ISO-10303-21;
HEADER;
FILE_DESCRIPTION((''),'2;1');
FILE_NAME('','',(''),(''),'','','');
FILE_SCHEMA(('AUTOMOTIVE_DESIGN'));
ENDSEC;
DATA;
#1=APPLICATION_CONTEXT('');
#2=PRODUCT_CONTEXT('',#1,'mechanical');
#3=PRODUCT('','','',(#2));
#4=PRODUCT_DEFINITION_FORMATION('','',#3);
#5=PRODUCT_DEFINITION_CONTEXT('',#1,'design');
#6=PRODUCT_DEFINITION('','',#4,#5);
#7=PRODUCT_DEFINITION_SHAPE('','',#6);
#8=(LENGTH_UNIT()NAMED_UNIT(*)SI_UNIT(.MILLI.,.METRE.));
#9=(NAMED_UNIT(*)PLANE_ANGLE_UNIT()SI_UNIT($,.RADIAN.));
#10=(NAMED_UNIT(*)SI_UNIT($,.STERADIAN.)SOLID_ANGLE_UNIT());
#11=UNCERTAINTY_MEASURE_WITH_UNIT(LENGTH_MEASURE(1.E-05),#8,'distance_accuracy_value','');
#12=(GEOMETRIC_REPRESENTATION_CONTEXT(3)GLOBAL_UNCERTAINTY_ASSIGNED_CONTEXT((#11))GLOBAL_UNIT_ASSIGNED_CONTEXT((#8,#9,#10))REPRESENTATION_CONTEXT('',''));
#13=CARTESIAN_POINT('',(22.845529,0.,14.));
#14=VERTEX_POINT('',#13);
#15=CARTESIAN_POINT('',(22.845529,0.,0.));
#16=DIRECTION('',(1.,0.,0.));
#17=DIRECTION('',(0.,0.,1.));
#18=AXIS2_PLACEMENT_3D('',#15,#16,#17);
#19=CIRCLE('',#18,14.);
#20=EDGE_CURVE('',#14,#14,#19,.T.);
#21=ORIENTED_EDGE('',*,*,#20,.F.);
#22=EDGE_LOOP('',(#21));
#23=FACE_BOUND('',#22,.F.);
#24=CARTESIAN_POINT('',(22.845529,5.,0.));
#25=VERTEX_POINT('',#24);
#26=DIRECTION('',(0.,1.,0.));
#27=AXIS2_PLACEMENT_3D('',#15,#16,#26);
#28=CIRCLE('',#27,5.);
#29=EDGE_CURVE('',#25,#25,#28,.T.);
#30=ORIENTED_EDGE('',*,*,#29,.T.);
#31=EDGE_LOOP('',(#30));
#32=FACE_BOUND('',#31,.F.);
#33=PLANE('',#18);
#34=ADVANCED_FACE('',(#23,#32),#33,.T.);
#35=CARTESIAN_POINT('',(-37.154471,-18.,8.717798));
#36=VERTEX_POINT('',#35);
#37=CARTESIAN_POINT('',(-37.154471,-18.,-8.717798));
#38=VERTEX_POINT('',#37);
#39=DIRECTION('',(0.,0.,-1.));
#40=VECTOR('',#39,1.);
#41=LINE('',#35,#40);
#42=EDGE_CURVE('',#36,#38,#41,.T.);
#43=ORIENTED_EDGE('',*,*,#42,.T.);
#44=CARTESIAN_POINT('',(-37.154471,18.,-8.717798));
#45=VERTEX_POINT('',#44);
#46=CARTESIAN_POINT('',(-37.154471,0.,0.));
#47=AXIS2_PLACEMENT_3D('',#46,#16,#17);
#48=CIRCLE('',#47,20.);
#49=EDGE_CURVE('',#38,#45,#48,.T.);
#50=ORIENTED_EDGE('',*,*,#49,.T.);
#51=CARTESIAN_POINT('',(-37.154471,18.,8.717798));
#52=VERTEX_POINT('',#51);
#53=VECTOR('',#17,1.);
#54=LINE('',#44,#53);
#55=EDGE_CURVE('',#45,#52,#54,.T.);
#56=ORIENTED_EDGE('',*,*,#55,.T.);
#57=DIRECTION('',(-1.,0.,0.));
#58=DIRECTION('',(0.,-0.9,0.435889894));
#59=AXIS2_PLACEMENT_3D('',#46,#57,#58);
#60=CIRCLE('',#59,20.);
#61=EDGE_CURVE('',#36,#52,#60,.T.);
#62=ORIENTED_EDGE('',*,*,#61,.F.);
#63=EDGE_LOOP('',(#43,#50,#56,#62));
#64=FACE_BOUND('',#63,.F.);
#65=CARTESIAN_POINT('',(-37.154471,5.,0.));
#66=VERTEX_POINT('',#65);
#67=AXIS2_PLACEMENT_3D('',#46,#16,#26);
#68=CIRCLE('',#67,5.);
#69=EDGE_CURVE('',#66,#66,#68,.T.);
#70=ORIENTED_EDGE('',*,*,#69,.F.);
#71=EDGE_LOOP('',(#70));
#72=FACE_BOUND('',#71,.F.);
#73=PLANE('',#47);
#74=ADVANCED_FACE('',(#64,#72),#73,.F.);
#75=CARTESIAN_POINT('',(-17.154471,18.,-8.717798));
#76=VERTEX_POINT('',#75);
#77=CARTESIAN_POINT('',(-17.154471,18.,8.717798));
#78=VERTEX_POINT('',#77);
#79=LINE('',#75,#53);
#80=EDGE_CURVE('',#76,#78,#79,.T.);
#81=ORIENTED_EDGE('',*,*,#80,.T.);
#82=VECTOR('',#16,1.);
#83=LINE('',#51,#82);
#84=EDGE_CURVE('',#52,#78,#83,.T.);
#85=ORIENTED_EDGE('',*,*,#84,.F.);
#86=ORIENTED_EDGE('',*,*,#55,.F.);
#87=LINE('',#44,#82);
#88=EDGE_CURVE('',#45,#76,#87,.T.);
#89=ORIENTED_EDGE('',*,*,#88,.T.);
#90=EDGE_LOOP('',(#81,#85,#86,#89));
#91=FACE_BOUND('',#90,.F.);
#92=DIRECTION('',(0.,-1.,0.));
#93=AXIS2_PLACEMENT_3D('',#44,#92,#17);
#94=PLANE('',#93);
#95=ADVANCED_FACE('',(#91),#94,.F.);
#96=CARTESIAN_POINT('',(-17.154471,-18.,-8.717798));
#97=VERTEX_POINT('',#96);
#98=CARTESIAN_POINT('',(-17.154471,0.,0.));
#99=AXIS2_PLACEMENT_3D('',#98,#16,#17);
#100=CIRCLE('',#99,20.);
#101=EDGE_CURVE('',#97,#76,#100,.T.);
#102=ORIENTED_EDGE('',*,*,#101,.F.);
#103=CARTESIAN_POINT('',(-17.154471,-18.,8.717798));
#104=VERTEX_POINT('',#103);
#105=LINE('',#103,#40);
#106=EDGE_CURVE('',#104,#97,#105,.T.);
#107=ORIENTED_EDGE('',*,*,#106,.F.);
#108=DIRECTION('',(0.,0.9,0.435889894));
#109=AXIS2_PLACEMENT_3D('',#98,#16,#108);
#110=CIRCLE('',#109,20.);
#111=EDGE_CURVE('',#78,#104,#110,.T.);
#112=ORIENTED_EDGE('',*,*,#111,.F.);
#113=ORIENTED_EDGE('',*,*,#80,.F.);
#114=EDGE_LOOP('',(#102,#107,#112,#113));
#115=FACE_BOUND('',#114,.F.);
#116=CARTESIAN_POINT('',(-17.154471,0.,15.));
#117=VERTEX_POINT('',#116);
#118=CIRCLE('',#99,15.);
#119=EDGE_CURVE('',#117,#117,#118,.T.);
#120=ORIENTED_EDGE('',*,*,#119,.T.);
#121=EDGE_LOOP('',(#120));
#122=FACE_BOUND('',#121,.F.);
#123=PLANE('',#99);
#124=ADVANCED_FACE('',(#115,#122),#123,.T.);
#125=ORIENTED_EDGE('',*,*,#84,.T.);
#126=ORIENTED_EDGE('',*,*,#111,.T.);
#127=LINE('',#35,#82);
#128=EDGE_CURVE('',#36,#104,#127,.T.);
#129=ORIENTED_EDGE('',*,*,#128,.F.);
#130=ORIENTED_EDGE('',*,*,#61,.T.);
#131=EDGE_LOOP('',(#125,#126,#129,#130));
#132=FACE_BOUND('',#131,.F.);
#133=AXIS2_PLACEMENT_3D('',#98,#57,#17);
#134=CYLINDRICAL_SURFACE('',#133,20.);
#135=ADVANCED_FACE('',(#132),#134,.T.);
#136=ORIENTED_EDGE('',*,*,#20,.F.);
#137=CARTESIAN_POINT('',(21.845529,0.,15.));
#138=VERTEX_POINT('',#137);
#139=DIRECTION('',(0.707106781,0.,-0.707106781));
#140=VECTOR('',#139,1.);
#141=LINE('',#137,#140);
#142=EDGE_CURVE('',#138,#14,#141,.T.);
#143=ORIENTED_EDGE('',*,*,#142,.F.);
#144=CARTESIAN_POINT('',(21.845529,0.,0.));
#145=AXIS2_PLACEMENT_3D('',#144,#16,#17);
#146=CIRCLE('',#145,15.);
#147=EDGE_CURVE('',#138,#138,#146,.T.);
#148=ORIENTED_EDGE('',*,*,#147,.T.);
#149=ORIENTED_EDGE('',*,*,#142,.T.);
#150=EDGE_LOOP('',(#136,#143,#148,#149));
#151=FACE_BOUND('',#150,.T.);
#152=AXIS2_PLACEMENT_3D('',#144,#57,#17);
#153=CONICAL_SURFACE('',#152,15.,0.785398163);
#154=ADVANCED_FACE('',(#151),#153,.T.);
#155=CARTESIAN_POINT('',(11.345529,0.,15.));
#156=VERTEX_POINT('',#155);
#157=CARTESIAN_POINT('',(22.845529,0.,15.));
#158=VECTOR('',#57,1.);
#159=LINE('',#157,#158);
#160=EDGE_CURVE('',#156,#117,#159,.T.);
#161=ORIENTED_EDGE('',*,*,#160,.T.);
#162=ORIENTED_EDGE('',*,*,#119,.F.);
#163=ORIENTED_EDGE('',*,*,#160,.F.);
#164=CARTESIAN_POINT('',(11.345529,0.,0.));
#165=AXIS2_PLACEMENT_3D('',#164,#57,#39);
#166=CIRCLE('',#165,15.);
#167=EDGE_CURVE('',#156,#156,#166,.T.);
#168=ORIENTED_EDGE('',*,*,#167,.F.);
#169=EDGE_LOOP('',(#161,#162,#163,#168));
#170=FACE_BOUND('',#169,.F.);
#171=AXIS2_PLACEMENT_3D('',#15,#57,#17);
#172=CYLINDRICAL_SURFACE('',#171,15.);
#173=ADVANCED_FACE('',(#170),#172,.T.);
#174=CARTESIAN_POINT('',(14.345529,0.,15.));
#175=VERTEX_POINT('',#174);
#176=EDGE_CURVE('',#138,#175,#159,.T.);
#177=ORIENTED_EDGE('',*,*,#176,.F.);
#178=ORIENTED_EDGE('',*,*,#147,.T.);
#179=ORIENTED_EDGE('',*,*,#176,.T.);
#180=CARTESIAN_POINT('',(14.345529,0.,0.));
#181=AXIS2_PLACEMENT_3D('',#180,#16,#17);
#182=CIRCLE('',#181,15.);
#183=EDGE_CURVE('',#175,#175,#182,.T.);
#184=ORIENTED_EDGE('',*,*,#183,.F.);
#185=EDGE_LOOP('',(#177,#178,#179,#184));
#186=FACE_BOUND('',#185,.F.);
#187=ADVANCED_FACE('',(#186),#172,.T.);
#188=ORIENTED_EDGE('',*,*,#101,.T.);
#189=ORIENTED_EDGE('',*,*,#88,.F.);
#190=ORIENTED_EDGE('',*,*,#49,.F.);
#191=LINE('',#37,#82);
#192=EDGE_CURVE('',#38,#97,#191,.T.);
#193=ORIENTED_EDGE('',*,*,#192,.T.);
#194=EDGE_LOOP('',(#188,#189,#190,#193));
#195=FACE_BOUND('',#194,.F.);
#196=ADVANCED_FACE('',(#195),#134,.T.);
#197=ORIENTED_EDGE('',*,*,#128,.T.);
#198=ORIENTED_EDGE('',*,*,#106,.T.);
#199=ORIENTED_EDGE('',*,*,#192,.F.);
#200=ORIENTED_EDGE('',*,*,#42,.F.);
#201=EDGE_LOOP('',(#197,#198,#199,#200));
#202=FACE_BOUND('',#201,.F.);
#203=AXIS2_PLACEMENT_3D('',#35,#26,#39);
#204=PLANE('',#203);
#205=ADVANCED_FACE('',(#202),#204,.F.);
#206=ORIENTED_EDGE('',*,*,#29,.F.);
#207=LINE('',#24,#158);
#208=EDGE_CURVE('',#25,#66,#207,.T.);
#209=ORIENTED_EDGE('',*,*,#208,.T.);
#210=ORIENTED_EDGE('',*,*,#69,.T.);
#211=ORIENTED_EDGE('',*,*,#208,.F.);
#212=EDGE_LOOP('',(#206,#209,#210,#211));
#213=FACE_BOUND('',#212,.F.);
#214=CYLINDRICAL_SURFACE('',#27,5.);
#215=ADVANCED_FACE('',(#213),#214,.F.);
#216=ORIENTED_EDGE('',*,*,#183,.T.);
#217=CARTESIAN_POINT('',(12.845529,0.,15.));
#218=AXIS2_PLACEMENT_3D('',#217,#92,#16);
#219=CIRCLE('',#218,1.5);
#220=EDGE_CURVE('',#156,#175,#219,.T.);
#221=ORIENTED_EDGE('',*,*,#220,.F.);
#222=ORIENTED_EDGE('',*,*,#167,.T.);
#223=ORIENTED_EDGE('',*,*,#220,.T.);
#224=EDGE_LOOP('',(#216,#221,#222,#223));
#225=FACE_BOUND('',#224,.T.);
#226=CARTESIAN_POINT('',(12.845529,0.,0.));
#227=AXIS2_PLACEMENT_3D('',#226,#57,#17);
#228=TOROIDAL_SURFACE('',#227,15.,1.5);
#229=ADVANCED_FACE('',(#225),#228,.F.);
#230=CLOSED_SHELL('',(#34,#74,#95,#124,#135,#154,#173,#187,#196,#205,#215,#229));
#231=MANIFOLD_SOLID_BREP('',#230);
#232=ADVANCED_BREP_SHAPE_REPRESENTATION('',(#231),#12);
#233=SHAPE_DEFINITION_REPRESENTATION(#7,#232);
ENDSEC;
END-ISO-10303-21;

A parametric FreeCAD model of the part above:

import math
import FreeCAD as App
import Part
import Sketcher
Q = App.Units.Quantity


def edges_at(feature, points):
    """Names of the edges that pass closest to the given points."""
    edges = feature.Shape.Edges
    near = lambda p: min(range(len(edges)), key=lambda i: edges[i].distToShape(Part.Vertex(*p))[0])
    return sorted({f"Edge{near(p) + 1}" for p in points})


def add_polygon(sketch, points):
    """Adds a closed chain of lines whose ends are joined by coincident constraints."""
    first, n = sketch.GeometryCount, len(points)
    for a, b in zip(points, points[1:] + points[:1]):
        sketch.addGeometry(Part.LineSegment(App.Vector(*a, 0), App.Vector(*b, 0)), False)
    for i in range(n):
        sketch.addConstraint(Sketcher.Constraint("Coincident", first + i, 2, first + (i + 1) % n, 1))

doc = App.newDocument("Part")
params = doc.addObject("Spreadsheet::Sheet", "Params")
for row, (alias, value) in enumerate([
    ("sketch1_width", "60 mm"),
    ("sketch1_width2", "40 mm"),
    ("sketch1_height", "15 mm"),
    ("revolution_angle", "360 deg"),
    ("sketch2_diameter", "3 mm"),
    ("groove_angle", "360 deg"),
    ("chamfer_size", "1 mm"),
    ("sketch3_diameter", "10 mm"),
    ("sketch4_radius", "20 mm"),
], start=1):
    params.set(f"A{row}", alias)
    params.set(f"B{row}", "=" + value)
    params.setAlias(f"B{row}", alias)

body = doc.addObject("PartDesign::Body", "Body")

# Sketch on XZ plane
sketch1 = doc.addObject("Sketcher::SketchObject", "Sketch")
body.addObject(sketch1)
sketch1.AttachmentSupport = (doc.XZ_Plane, [""])
sketch1.MapMode = "FlatFace"
add_polygon(sketch1, [(-37, 20), (-37, 0), (23, 0), (23, 15), (-17, 15), (-17, 20)])  # lines 0-5
sketch1.addConstraint(Sketcher.Constraint("Vertical", 0))
sketch1.addConstraint(Sketcher.Constraint("Horizontal", 1))
sketch1.addConstraint(Sketcher.Constraint("Vertical", 2))
sketch1.addConstraint(Sketcher.Constraint("Horizontal", 3))
sketch1.addConstraint(Sketcher.Constraint("Vertical", 4))
sketch1.addConstraint(Sketcher.Constraint("Horizontal", 5))
sketch1.addConstraint(Sketcher.Constraint("PointOnObject", 0, 2, -1))
sketch1.addConstraint(Sketcher.Constraint("Equal", 5, 0))
sketch1.addConstraint(Sketcher.Constraint("DistanceX", 1, 1, 1, 2, Q("60 mm")))
sketch1.addConstraint(Sketcher.Constraint("DistanceX", 3, 2, 3, 1, Q("40 mm")))
sketch1.addConstraint(Sketcher.Constraint("DistanceY", 2, 1, 2, 2, Q("15 mm")))
sketch1.addConstraint(Sketcher.Constraint("DistanceX", 0, 2, -1, 1, Q("37.154471 mm")))
sketch1.setExpression("Constraints[14]", "Params.sketch1_width")
sketch1.setExpression("Constraints[15]", "Params.sketch1_width2")
sketch1.setExpression("Constraints[16]", "Params.sketch1_height")
revolution = doc.addObject("PartDesign::Revolution", "Revolution")
body.addObject(revolution)
revolution.Profile = sketch1
revolution.ReferenceAxis = (sketch1, ["H_Axis"])
revolution.setExpression("Angle", "Params.revolution_angle")

# Sketch on XZ plane
sketch2 = doc.addObject("Sketcher::SketchObject", "Sketch001")
body.addObject(sketch2)
sketch2.AttachmentSupport = (doc.XZ_Plane, [""])
sketch2.MapMode = "FlatFace"
sketch2.addGeometry(Part.Circle(App.Vector(12.8, 15, 0), App.Vector(0, 0, 1), 1.5), False)
sketch2.addConstraint(Sketcher.Constraint("Diameter", 0, Q("3 mm")))
sketch2.addConstraint(Sketcher.Constraint("DistanceY", -1, 1, 0, 3, Q("15 mm")))
sketch2.addConstraint(Sketcher.Constraint("DistanceX", -1, 1, 0, 3, Q("12.845529 mm")))
sketch2.setExpression("Constraints[0]", "Params.sketch2_diameter")
groove = doc.addObject("PartDesign::Groove", "Groove")
body.addObject(groove)
groove.Profile = sketch2
groove.ReferenceAxis = (sketch2, ["H_Axis"])
groove.setExpression("Angle", "Params.groove_angle")
doc.recompute()

chamfer = doc.addObject("PartDesign::Chamfer", "Chamfer")
body.addObject(chamfer)
chamfer.Base = (groove, edges_at(groove, [(22.846, 0, -15)]))
chamfer.setExpression("Size", "Params.chamfer_size")

# Sketch on YZ plane
sketch3 = doc.addObject("Sketcher::SketchObject", "Sketch002")
body.addObject(sketch3)
sketch3.AttachmentSupport = (doc.YZ_Plane, [""])
sketch3.MapMode = "FlatFace"
sketch3.AttachmentOffset = App.Placement(App.Vector(0, 0, 22.845529), App.Rotation())
sketch3.addGeometry(Part.Circle(App.Vector(0, 0, 0), App.Vector(0, 0, 1), 5), False)
sketch3.addConstraint(Sketcher.Constraint("Coincident", 0, 3, -1, 1))
sketch3.addConstraint(Sketcher.Constraint("Diameter", 0, Q("10 mm")))
sketch3.setExpression("Constraints[1]", "Params.sketch3_diameter")
pocket1 = doc.addObject("PartDesign::Pocket", "Pocket")
body.addObject(pocket1)
pocket1.Profile = sketch3
pocket1.Type = "ThroughAll"

# Sketch on YZ plane
sketch4 = doc.addObject("Sketcher::SketchObject", "Sketch003")
body.addObject(sketch4)
sketch4.AttachmentSupport = (doc.YZ_Plane, [""])
sketch4.MapMode = "FlatFace"
sketch4.AttachmentOffset = App.Placement(App.Vector(0, 0, -37.154471), App.Rotation())
sketch4.addGeometry(Part.ArcOfCircle(Part.Circle(App.Vector(0, 0, 0), App.Vector(0, 0, 1), 20), math.radians(154), math.radians(180)), False)
sketch4.addGeometry(Part.LineSegment(App.Vector(-18, 9, 0), App.Vector(-18, -9, 0)), False)
sketch4.addGeometry(Part.ArcOfCircle(Part.Circle(App.Vector(0, 0, 0), App.Vector(0, 0, 1), 20), math.radians(180), math.radians(206)), False)
sketch4.addGeometry(Part.LineSegment(App.Vector(18, -9, 0), App.Vector(18, 9, 0)), False)
sketch4.addGeometry(Part.ArcOfCircle(Part.Circle(App.Vector(0, 0, 0), App.Vector(0, 0, 1), 20), math.radians(-26), math.radians(26)), False)
sketch4.addConstraint(Sketcher.Constraint("Coincident", 0, 1, 1, 1))
sketch4.addConstraint(Sketcher.Constraint("Coincident", 1, 2, 2, 2))
sketch4.addConstraint(Sketcher.Constraint("Tangent", 2, 1, 0, 2))
sketch4.addConstraint(Sketcher.Constraint("Coincident", 3, 1, 4, 1))
sketch4.addConstraint(Sketcher.Constraint("Coincident", 4, 2, 3, 2))
sketch4.addConstraint(Sketcher.Constraint("Vertical", 1))
sketch4.addConstraint(Sketcher.Constraint("Vertical", 3))
sketch4.addConstraint(Sketcher.Constraint("Coincident", 0, 3, -1, 1))
sketch4.addConstraint(Sketcher.Constraint("Coincident", 4, 3, -1, 1))
sketch4.addConstraint(Sketcher.Constraint("Equal", 0, 2))
sketch4.addConstraint(Sketcher.Constraint("Equal", 2, 4))
sketch4.addConstraint(Sketcher.Constraint("PointOnObject", 2, 1, -1))
sketch4.addConstraint(Sketcher.Constraint("Horizontal", 1, 2, 3, 1))
sketch4.addConstraint(Sketcher.Constraint("Radius", 0, Q("20 mm")))
sketch4.addConstraint(Sketcher.Constraint("DistanceX", 0, 1, -1, 1, Q("18 mm")))
sketch4.setExpression("Constraints[13]", "Params.sketch4_radius")
pocket2 = doc.addObject("PartDesign::Pocket", "Pocket001")
body.addObject(pocket2)
pocket2.Profile = sketch4
pocket2.Type = "ThroughAll"
pocket2.Reversed = True

doc.recompute()
